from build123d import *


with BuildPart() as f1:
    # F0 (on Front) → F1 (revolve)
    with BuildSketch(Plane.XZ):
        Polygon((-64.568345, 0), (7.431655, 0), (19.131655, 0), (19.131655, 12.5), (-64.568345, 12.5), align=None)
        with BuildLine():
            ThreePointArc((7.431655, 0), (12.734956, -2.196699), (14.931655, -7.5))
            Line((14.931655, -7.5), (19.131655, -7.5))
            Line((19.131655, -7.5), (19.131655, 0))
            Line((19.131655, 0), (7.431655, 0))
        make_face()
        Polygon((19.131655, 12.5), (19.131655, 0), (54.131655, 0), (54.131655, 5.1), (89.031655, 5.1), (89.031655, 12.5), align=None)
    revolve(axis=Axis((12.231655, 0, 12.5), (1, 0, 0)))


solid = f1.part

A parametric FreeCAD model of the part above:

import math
import FreeCAD as App
import Part
import Sketcher

V = App.Vector
Q = App.Units.Quantity

doc = App.newDocument("Part")
params = doc.addObject("Spreadsheet::Sheet", "Params")
for row, (alias, value) in enumerate([
    ("sketch1_radius", "7.5 mm"),
    ("sketch1_width", "72 mm"),
    ("sketch1_width2", "35 mm"),
    ("sketch1_width3", "4.2 mm"),
    ("sketch1_width4", "34.9 mm"),
    ("revolution_angle", "360 deg"),
], start=1):
    params.set(f"A{row}", alias)
    params.set(f"B{row}", "=" + value)
    params.setAlias(f"B{row}", alias)

body = doc.addObject("PartDesign::Body", "Body")

# Sketch on XZ plane
sketch1 = doc.addObject("Sketcher::SketchObject", "Sketch")
body.addObject(sketch1)
sketch1.AttachmentSupport = (doc.XZ_Plane, [""])
sketch1.MapMode = "FlatFace"
sketch1.addGeometry([
    Part.LineSegment(V(-64.568345, 0, 0), V(7.431655, 0, 0)),  # 0
    Part.ArcOfCircle(Part.Circle(V(7.431655, -7.5, 0), V(0, 0, 1), 7.5), math.radians(-0.000004), math.radians(90.000004)),  # 1
    Part.LineSegment(V(14.931655, -7.5, 0), V(19.131655, -7.5, 0)),  # 2
    Part.LineSegment(V(19.131655, -7.5, 0), V(19.131655, 0, 0)),  # 3
    Part.LineSegment(V(19.131655, 0, 0), V(54.131655, 0, 0)),  # 4
    Part.LineSegment(V(54.131655, 0, 0), V(54.131655, 5.1, 0)),  # 5
    Part.LineSegment(V(54.131655, 5.1, 0), V(89.031655, 5.1, 0)),  # 6
    Part.LineSegment(V(89.031655, 5.1, 0), V(89.031655, 12.5, 0)),  # 7
    Part.LineSegment(V(89.031655, 12.5, 0), V(-64.568345, 12.5, 0)),  # 8
    Part.LineSegment(V(-64.568345, 12.5, 0), V(-64.568345, 0, 0)),  # 9
], False)
sketch1.addGeometry(Part.LineSegment(V(-64.568345, 12.5, 0), V(89.031655, 12.5, 0)), True)  # axis
sketch1.addConstraint([
    Sketcher.Constraint("Tangent", 0, 2, 1, 2),
    Sketcher.Constraint("Coincident", 1, 1, 2, 1),
    Sketcher.Constraint("Coincident", 2, 2, 3, 1),
    Sketcher.Constraint("Coincident", 3, 2, 4, 1),
    Sketcher.Constraint("Coincident", 4, 2, 5, 1),
    Sketcher.Constraint("Coincident", 5, 2, 6, 1),
    Sketcher.Constraint("Coincident", 6, 2, 7, 1),
    Sketcher.Constraint("Coincident", 7, 2, 8, 1),
    Sketcher.Constraint("Coincident", 8, 2, 9, 1),
    Sketcher.Constraint("Coincident", 9, 2, 0, 1),
    Sketcher.Constraint("Horizontal", 0),
    Sketcher.Constraint("Horizontal", 2),
    Sketcher.Constraint("Vertical", 3),
    Sketcher.Constraint("Horizontal", 4),
    Sketcher.Constraint("Vertical", 5),
    Sketcher.Constraint("Horizontal", 6),
    Sketcher.Constraint("Vertical", 7),
    Sketcher.Constraint("Horizontal", 8),
    Sketcher.Constraint("Vertical", 9),
    Sketcher.Constraint("Horizontal", 10),
    Sketcher.Constraint("Coincident", 10, 1, 8, 2),
    Sketcher.Constraint("PointOnObject", 0, 2, -1),
    Sketcher.Constraint("PointOnObject", 3, 2, -1),
    Sketcher.Constraint("Vertical", 6, 2, 10, 2),
    Sketcher.Constraint("Radius", 1, Q("7.5 mm")),
    Sketcher.Constraint("DistanceX", 0, 1, 0, 2, Q("72 mm")),
    Sketcher.Constraint("DistanceX", 4, 1, 4, 2, Q("35 mm")),
    Sketcher.Constraint("DistanceX", 2, 1, 2, 2, Q("4.2 mm")),
    Sketcher.Constraint("DistanceX", 6, 1, 6, 2, Q("34.9 mm")),
    Sketcher.Constraint("DistanceY", 3, 1, 3, 2, Q("7.5 mm")),
    Sketcher.Constraint("DistanceY", 5, 1, 5, 2, Q("5.1 mm")),
    Sketcher.Constraint("DistanceY", 7, 1, 7, 2, Q("7.4 mm")),
    Sketcher.Constraint("DistanceX", -1, 1, 1, 3, Q("7.431655 mm")),
])
sketch1.setExpression("Constraints[24]", "Params.sketch1_radius")
sketch1.setExpression("Constraints[25]", "Params.sketch1_width")
sketch1.setExpression("Constraints[26]", "Params.sketch1_width2")
sketch1.setExpression("Constraints[27]", "Params.sketch1_width3")
sketch1.setExpression("Constraints[28]", "Params.sketch1_width4")
revolution = doc.addObject("PartDesign::Revolution", "Revolution")
body.addObject(revolution)
revolution.Profile = sketch1
revolution.ReferenceAxis = (sketch1, ["Axis0"])
revolution.setExpression("Angle", "Params.revolution_angle")

doc.recompute()
